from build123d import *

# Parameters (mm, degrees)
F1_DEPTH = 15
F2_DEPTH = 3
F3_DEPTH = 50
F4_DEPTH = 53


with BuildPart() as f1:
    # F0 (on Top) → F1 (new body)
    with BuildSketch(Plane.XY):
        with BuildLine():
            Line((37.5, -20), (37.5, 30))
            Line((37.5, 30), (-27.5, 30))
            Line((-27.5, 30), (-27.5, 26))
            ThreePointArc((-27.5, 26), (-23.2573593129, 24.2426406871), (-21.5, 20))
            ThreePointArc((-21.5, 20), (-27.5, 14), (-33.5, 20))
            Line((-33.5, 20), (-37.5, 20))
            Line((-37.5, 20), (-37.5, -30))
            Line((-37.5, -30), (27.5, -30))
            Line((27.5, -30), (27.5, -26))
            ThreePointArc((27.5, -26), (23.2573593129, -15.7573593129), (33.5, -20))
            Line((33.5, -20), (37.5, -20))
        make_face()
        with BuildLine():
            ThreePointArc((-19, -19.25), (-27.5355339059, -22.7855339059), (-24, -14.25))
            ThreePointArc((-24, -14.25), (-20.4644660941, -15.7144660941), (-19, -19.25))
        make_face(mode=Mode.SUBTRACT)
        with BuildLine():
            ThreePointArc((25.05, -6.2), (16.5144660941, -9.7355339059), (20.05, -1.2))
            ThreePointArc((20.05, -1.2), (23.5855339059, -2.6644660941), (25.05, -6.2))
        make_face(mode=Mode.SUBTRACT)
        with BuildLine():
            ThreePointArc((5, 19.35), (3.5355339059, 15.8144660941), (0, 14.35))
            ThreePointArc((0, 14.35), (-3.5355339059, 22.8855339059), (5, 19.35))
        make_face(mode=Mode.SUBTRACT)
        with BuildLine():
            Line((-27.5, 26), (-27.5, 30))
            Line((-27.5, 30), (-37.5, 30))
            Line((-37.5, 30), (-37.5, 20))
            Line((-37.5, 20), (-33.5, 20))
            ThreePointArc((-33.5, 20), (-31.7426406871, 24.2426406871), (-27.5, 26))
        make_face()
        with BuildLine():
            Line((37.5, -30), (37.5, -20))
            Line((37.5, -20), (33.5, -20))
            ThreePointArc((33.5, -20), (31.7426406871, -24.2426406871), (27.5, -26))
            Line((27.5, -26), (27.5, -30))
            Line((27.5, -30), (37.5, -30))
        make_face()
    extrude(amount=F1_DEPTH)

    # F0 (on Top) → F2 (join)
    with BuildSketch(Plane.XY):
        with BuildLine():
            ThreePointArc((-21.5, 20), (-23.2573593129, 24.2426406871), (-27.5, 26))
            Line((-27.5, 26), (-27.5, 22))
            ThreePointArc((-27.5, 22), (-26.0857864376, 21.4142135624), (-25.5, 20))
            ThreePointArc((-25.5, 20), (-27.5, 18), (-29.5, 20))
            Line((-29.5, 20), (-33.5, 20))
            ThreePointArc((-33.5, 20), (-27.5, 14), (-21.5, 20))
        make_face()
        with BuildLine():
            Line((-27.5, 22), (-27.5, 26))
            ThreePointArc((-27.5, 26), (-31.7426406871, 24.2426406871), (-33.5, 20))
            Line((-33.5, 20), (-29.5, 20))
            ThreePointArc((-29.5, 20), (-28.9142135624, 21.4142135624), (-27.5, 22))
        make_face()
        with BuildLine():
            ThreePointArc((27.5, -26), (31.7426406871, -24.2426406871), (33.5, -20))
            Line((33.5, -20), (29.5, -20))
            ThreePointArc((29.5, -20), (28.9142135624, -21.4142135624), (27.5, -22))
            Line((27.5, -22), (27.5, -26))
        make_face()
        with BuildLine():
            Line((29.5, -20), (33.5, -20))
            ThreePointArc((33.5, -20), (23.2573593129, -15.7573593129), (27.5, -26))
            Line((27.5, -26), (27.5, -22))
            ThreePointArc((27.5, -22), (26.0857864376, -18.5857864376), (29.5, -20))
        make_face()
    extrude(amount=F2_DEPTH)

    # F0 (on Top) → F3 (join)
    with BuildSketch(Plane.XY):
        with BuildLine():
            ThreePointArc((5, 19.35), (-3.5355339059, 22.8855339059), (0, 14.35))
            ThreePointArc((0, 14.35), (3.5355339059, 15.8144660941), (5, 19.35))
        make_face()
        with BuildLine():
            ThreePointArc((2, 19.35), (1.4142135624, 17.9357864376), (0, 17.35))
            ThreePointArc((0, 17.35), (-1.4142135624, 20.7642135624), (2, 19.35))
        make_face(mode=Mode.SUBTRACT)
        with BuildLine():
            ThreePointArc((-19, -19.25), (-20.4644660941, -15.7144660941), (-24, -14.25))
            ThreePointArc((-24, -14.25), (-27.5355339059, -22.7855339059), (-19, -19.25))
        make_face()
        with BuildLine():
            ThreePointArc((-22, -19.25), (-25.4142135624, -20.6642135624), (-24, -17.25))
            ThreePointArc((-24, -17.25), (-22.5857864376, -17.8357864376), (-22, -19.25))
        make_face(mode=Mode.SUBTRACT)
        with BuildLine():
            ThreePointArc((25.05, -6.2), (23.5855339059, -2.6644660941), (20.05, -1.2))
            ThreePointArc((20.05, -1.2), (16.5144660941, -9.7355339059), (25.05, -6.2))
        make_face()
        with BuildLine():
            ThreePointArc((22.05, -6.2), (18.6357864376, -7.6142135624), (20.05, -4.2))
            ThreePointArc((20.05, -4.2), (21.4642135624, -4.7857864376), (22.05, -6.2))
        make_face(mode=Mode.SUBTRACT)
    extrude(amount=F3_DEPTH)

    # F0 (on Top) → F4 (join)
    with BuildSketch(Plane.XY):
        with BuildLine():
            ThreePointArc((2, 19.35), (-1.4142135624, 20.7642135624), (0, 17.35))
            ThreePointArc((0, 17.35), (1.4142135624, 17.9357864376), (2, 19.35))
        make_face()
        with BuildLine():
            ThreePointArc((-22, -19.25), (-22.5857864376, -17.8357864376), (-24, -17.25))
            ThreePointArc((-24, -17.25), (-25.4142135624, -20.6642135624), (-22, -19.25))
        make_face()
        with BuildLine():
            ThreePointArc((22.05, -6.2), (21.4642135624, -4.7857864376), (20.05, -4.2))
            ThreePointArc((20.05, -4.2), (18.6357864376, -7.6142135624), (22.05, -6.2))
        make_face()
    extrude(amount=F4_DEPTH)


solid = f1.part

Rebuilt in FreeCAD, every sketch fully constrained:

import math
import FreeCAD as App
import Part
import Sketcher
from FreeCAD import Vector
Q = App.Units.Quantity


def add_polygon(sketch, points):
    """Adds a closed chain of lines whose ends are joined by coincident constraints."""
    first, n = sketch.GeometryCount, len(points)
    for a, b in zip(points, points[1:] + points[:1]):
        sketch.addGeometry(Part.LineSegment(App.Vector(*a, 0), App.Vector(*b, 0)), False)
    for i in range(n):
        sketch.addConstraint(Sketcher.Constraint("Coincident", first + i, 2, first + (i + 1) % n, 1))

doc = App.newDocument("Part")
body = doc.addObject("PartDesign::Body", "Body")

# Sketch on XY plane
sketch1 = doc.addObject("Sketcher::SketchObject", "Sketch")
body.addObject(sketch1)
sketch1.AttachmentSupport = (doc.XY_Plane, [""])
sketch1.MapMode = "FlatFace"
add_polygon(sketch1, [(38, 30), (-38, 30), (-38, -30), (38, -30)])  # lines 0-3
sketch1.addGeometry(Part.ArcOfCircle(Part.Circle(Vector(28, -20, 0), Vector(0, 0, 1), 6), math.radians(0), math.radians(270)), False)  # 4
sketch1.addGeometry(Part.ArcOfCircle(Part.Circle(Vector(28, -20, 0), Vector(0, 0, 1), 6), math.radians(-90), math.radians(0)), False)  # 5
sketch1.addGeometry(Part.ArcOfCircle(Part.Circle(Vector(-28, 20, 0), Vector(0, 0, 1), 6), math.radians(0), math.radians(90)), False)  # 6
sketch1.addGeometry(Part.ArcOfCircle(Part.Circle(Vector(-28, 20, 0), Vector(0, 0, 1), 6), math.radians(180), math.radians(360)), False)  # 7
sketch1.addGeometry(Part.ArcOfCircle(Part.Circle(Vector(-28, 20, 0), Vector(0, 0, 1), 6), math.radians(90), math.radians(180)), False)  # 8
sketch1.addGeometry(Part.ArcOfCircle(Part.Circle(Vector(-24, -19, 0), Vector(0, 0, 1), 5), math.radians(0), math.radians(90)), False)  # 9
sketch1.addGeometry(Part.ArcOfCircle(Part.Circle(Vector(-24, -19, 0), Vector(0, 0, 1), 5), math.radians(90), math.radians(360)), False)  # 10
sketch1.addGeometry(Part.ArcOfCircle(Part.Circle(Vector(20, -6, 0), Vector(0, 0, 1), 5), math.radians(0), math.radians(90)), False)  # 11
sketch1.addGeometry(Part.ArcOfCircle(Part.Circle(Vector(20, -6, 0), Vector(0, 0, 1), 5), math.radians(90), math.radians(360)), False)  # 12
sketch1.addGeometry(Part.ArcOfCircle(Part.Circle(Vector(0, 19, 0), Vector(0, 0, 1), 5), math.radians(0), math.radians(270)), False)  # 13
sketch1.addGeometry(Part.ArcOfCircle(Part.Circle(Vector(0, 19, 0), Vector(0, 0, 1), 5), math.radians(-90), math.radians(0)), False)  # 14
sketch1.addConstraint([
    Sketcher.Constraint("Tangent", 4, 1, 5, 2),
    Sketcher.Constraint("Coincident", 5, 1, 4, 2),
    Sketcher.Constraint("Tangent", 6, 1, 7, 2),
    Sketcher.Constraint("Tangent", 7, 1, 8, 2),
    Sketcher.Constraint("Tangent", 8, 1, 6, 2),
    Sketcher.Constraint("Tangent", 9, 1, 10, 2),
    Sketcher.Constraint("Coincident", 10, 1, 9, 2),
    Sketcher.Constraint("Tangent", 11, 1, 12, 2),
    Sketcher.Constraint("Coincident", 12, 1, 11, 2),
    Sketcher.Constraint("Tangent", 13, 1, 14, 2),
    Sketcher.Constraint("Coincident", 14, 1, 13, 2),
    Sketcher.Constraint("Horizontal", 0),
    Sketcher.Constraint("Vertical", 1),
    Sketcher.Constraint("Horizontal", 2),
    Sketcher.Constraint("Vertical", 3),
    Sketcher.Constraint("Equal", 5, 6),
    Sketcher.Constraint("Equal", 10, 11),
    Sketcher.Constraint("Equal", 12, 13),
    Sketcher.Constraint("Symmetric", 4, 3, 6, 3, -1, 1),
    Sketcher.Constraint("Symmetric", 0, 2, 2, 2, -1, 1),
    Sketcher.Constraint("PointOnObject", 13, 3, -2),
    Sketcher.Constraint("PointOnObject", 14, 1, -2),
    Sketcher.Constraint("Horizontal", 5, 3, 4, 1),
    Sketcher.Constraint("Horizontal", 8, 3, 6, 1),
    Sketcher.Constraint("Horizontal", 6, 1, 7, 1),
    Sketcher.Constraint("Horizontal", 10, 3, 9, 1),
    Sketcher.Constraint("Horizontal", 12, 3, 11, 1),
    Sketcher.Constraint("Horizontal", 14, 3, 13, 1),
    Sketcher.Constraint("Vertical", 4, 3, 5, 1),
    Sketcher.Constraint("Vertical", 7, 3, 8, 1),
    Sketcher.Constraint("Vertical", 9, 3, 10, 1),
    Sketcher.Constraint("Vertical", 11, 3, 12, 1),
    Sketcher.Constraint("Radius", 4, Q("6 mm")),
    Sketcher.Constraint("Radius", 9, Q("5 mm")),
    Sketcher.Constraint("DistanceX", 0, 2, 0, 1, Q("75 mm")),
    Sketcher.Constraint("DistanceY", 1, 2, 1, 1, Q("60 mm")),
    Sketcher.Constraint("DistanceY", 4, 3, -1, 1, Q("20 mm")),
    Sketcher.Constraint("DistanceX", 9, 3, -1, 1, Q("24 mm")),
    Sketcher.Constraint("DistanceX", 6, 3, 4, 3, Q("55 mm")),
    Sketcher.Constraint("DistanceY", 11, 3, -1, 1, Q("6.2 mm")),
    Sketcher.Constraint("DistanceY", 9, 3, -1, 1, Q("19.25 mm")),
    Sketcher.Constraint("DistanceX", -1, 1, 11, 3, Q("20.05 mm")),
    Sketcher.Constraint("DistanceY", -1, 1, 13, 3, Q("19.35 mm")),
])
pad1 = doc.addObject("PartDesign::Pad", "Pad")
body.addObject(pad1)
pad1.Profile = sketch1
pad1.Length = 15

# Sketch on XY plane
sketch2 = doc.addObject("Sketcher::SketchObject", "Sketch001")
body.addObject(sketch2)
sketch2.AttachmentSupport = (doc.XY_Plane, [""])
sketch2.MapMode = "FlatFace"
sketch2.addGeometry([
    Part.ArcOfCircle(Part.Circle(Vector(-27.5, 20, 0), Vector(0, 0, 1), 6), math.radians(0), math.radians(90)),  # 0
    Part.ArcOfCircle(Part.Circle(Vector(-27.5, 20, 0), Vector(0, 0, 1), 6), math.radians(90), math.radians(180)),  # 1
    Part.ArcOfCircle(Part.Circle(Vector(-27.5, 20, 0), Vector(0, 0, 1), 6), math.radians(180), math.radians(360)),  # 2
    Part.ArcOfCircle(Part.Circle(Vector(-27.5, 20, 0), Vector(0, 0, 1), 2), math.radians(0), math.radians(90)),  # 3
    Part.ArcOfCircle(Part.Circle(Vector(-27.5, 20, 0), Vector(0, 0, 1), 2), math.radians(180), math.radians(360)),  # 4
    Part.ArcOfCircle(Part.Circle(Vector(-27.5, 20, 0), Vector(0, 0, 1), 2), math.radians(90), math.radians(180)),  # 5
    Part.ArcOfCircle(Part.Circle(Vector(27.5, -20, 0), Vector(0, 0, 1), 6), math.radians(-90), math.radians(0)),  # 6
    Part.ArcOfCircle(Part.Circle(Vector(27.5, -20, 0), Vector(0, 0, 1), 6), math.radians(0), math.radians(270)),  # 7
    Part.ArcOfCircle(Part.Circle(Vector(27.5, -20, 0), Vector(0, 0, 1), 2), math.radians(-90), math.radians(0)),  # 8
    Part.ArcOfCircle(Part.Circle(Vector(27.5, -20, 0), Vector(0, 0, 1), 2), math.radians(0), math.radians(270)),  # 9
], False)
sketch2.addConstraint([
    Sketcher.Constraint("Tangent", 0, 2, 1, 1),
    Sketcher.Constraint("Tangent", 1, 2, 2, 1),
    Sketcher.Constraint("Tangent", 2, 2, 0, 1),
    Sketcher.Constraint("Tangent", 3, 1, 4, 2),
    Sketcher.Constraint("Tangent", 4, 1, 5, 2),
    Sketcher.Constraint("Tangent", 5, 1, 3, 2),
    Sketcher.Constraint("Tangent", 6, 1, 7, 2),
    Sketcher.Constraint("Coincident", 7, 1, 6, 2),
    Sketcher.Constraint("Tangent", 8, 1, 9, 2),
    Sketcher.Constraint("Coincident", 9, 1, 8, 2),
    Sketcher.Constraint("Coincident", 3, 3, 0, 3),
    Sketcher.Constraint("Coincident", 8, 3, 6, 3),
    Sketcher.Constraint("Equal", 2, 6),
    Sketcher.Constraint("Equal", 5, 8),
    Sketcher.Constraint("Symmetric", 0, 3, 6, 3, -1, 1),
    Sketcher.Constraint("Horizontal", 5, 3, 1, 2),
    Sketcher.Constraint("Horizontal", 1, 2, 2, 2),
    Sketcher.Constraint("Horizontal", 2, 2, 3, 1),
    Sketcher.Constraint("Horizontal", 3, 1, 4, 1),
    Sketcher.Constraint("Horizontal", 9, 3, 7, 1),
    Sketcher.Constraint("Horizontal", 7, 1, 9, 1),
    Sketcher.Constraint("Vertical", 5, 3, 0, 2),
    Sketcher.Constraint("Vertical", 0, 2, 5, 1),
    Sketcher.Constraint("Vertical", 9, 3, 6, 1),
    Sketcher.Constraint("Vertical", 6, 1, 8, 1),
    Sketcher.Constraint("Radius", 0, Q("6 mm")),
    Sketcher.Constraint("Radius", 3, Q("2 mm")),
    Sketcher.Constraint("DistanceY", -1, 1, 0, 3, Q("20 mm")),
    Sketcher.Constraint("DistanceX", 0, 3, 6, 3, Q("55 mm")),
])
pad2 = doc.addObject("PartDesign::Pad", "Pad001")
body.addObject(pad2)
pad2.Profile = sketch2
pad2.Length = 3

# Sketch on XY plane
sketch3 = doc.addObject("Sketcher::SketchObject", "Sketch002")
body.addObject(sketch3)
sketch3.AttachmentSupport = (doc.XY_Plane, [""])
sketch3.MapMode = "FlatFace"
sketch3.addGeometry([
    Part.ArcOfCircle(Part.Circle(Vector(0, 19.4, 0), Vector(0, 0, 1), 5), math.radians(0), math.radians(270)),  # 0
    Part.ArcOfCircle(Part.Circle(Vector(0, 19.4, 0), Vector(0, 0, 1), 5), math.radians(-90), math.radians(0)),  # 1
    Part.ArcOfCircle(Part.Circle(Vector(0, 19.4, 0), Vector(0, 0, 1), 2), math.radians(0), math.radians(270)),  # 2
    Part.ArcOfCircle(Part.Circle(Vector(0, 19.4, 0), Vector(0, 0, 1), 2), math.radians(-90), math.radians(0)),  # 3
    Part.ArcOfCircle(Part.Circle(Vector(-24, -19.2, 0), Vector(0, 0, 1), 5), math.radians(0), math.radians(90)),  # 4
    Part.ArcOfCircle(Part.Circle(Vector(-24, -19.2, 0), Vector(0, 0, 1), 5), math.radians(90), math.radians(360)),  # 5
    Part.ArcOfCircle(Part.Circle(Vector(-24, -19.2, 0), Vector(0, 0, 1), 2), math.radians(0), math.radians(90)),  # 6
    Part.ArcOfCircle(Part.Circle(Vector(-24, -19.2, 0), Vector(0, 0, 1), 2), math.radians(90), math.radians(360)),  # 7
    Part.ArcOfCircle(Part.Circle(Vector(20.1, -6.2, 0), Vector(0, 0, 1), 5), math.radians(0), math.radians(90)),  # 8
    Part.ArcOfCircle(Part.Circle(Vector(20.1, -6.2, 0), Vector(0, 0, 1), 5), math.radians(90), math.radians(360)),  # 9
    Part.ArcOfCircle(Part.Circle(Vector(20.1, -6.2, 0), Vector(0, 0, 1), 2), math.radians(0), math.radians(90)),  # 10
    Part.ArcOfCircle(Part.Circle(Vector(20.1, -6.2, 0), Vector(0, 0, 1), 2), math.radians(90), math.radians(360)),  # 11
], False)
sketch3.addConstraint([
    Sketcher.Constraint("Tangent", 0, 1, 1, 2),
    Sketcher.Constraint("Coincident", 1, 1, 0, 2),
    Sketcher.Constraint("Tangent", 2, 1, 3, 2),
    Sketcher.Constraint("Coincident", 3, 1, 2, 2),
    Sketcher.Constraint("Tangent", 4, 1, 5, 2),
    Sketcher.Constraint("Coincident", 5, 1, 4, 2),
    Sketcher.Constraint("Tangent", 6, 1, 7, 2),
    Sketcher.Constraint("Coincident", 7, 1, 6, 2),
    Sketcher.Constraint("Tangent", 8, 1, 9, 2),
    Sketcher.Constraint("Coincident", 9, 1, 8, 2),
    Sketcher.Constraint("Tangent", 10, 1, 11, 2),
    Sketcher.Constraint("Coincident", 11, 1, 10, 2),
    Sketcher.Constraint("Coincident", 2, 3, 0, 3),
    Sketcher.Constraint("Coincident", 6, 3, 4, 3),
    Sketcher.Constraint("Coincident", 10, 3, 8, 3),
    Sketcher.Constraint("Equal", 1, 4),
    Sketcher.Constraint("Equal", 3, 6),
    Sketcher.Constraint("Equal", 5, 8),
    Sketcher.Constraint("Equal", 7, 10),
    Sketcher.Constraint("PointOnObject", 0, 3, -2),
    Sketcher.Constraint("PointOnObject", 1, 1, -2),
    Sketcher.Constraint("PointOnObject", 3, 1, -2),
    Sketcher.Constraint("Horizontal", 3, 3, 0, 1),
    Sketcher.Constraint("Horizontal", 0, 1, 2, 1),
    Sketcher.Constraint("Horizontal", 7, 3, 4, 1),
    Sketcher.Constraint("Horizontal", 4, 1, 6, 1),
    Sketcher.Constraint("Horizontal", 11, 3, 8, 1),
    Sketcher.Constraint("Horizontal", 8, 1, 10, 1),
    Sketcher.Constraint("Vertical", 7, 3, 5, 1),
    Sketcher.Constraint("Vertical", 5, 1, 7, 1),
    Sketcher.Constraint("Vertical", 11, 3, 9, 1),
    Sketcher.Constraint("Vertical", 9, 1, 11, 1),
    Sketcher.Constraint("Radius", 0, Q("5 mm")),
    Sketcher.Constraint("Radius", 2, Q("2 mm")),
    Sketcher.Constraint("DistanceX", 4, 3, -1, 1, Q("24 mm")),
    Sketcher.Constraint("DistanceY", 8, 3, -1, 1, Q("6.2 mm")),
    Sketcher.Constraint("DistanceY", 4, 3, 0, 3, Q("38.6 mm")),
    Sketcher.Constraint("DistanceY", -1, 1, 0, 3, Q("19.35 mm")),
    Sketcher.Constraint("DistanceX", -1, 1, 8, 3, Q("20.05 mm")),
])
pad3 = doc.addObject("PartDesign::Pad", "Pad002")
body.addObject(pad3)
pad3.Profile = sketch3
pad3.Length = 50

# Sketch on XY plane
sketch4 = doc.addObject("Sketcher::SketchObject", "Sketch003")
body.addObject(sketch4)
sketch4.AttachmentSupport = (doc.XY_Plane, [""])
sketch4.MapMode = "FlatFace"
sketch4.addGeometry([
    Part.ArcOfCircle(Part.Circle(Vector(0, 19.4, 0), Vector(0, 0, 1), 2), math.radians(0), math.radians(270)),  # 0
    Part.ArcOfCircle(Part.Circle(Vector(0, 19.4, 0), Vector(0, 0, 1), 2), math.radians(-90), math.radians(0)),  # 1
    Part.ArcOfCircle(Part.Circle(Vector(-24, -19.2, 0), Vector(0, 0, 1), 2), math.radians(0), math.radians(90)),  # 2
    Part.ArcOfCircle(Part.Circle(Vector(-24, -19.2, 0), Vector(0, 0, 1), 2), math.radians(90), math.radians(360)),  # 3
    Part.ArcOfCircle(Part.Circle(Vector(20.1, -6.2, 0), Vector(0, 0, 1), 2), math.radians(0), math.radians(90)),  # 4
    Part.ArcOfCircle(Part.Circle(Vector(20.1, -6.2, 0), Vector(0, 0, 1), 2), math.radians(90), math.radians(360)),  # 5
], False)
sketch4.addConstraint([
    Sketcher.Constraint("Tangent", 0, 1, 1, 2),
    Sketcher.Constraint("Coincident", 1, 1, 0, 2),
    Sketcher.Constraint("Tangent", 2, 1, 3, 2),
    Sketcher.Constraint("Coincident", 3, 1, 2, 2),
    Sketcher.Constraint("Tangent", 4, 1, 5, 2),
    Sketcher.Constraint("Coincident", 5, 1, 4, 2),
    Sketcher.Constraint("Equal", 1, 2),
    Sketcher.Constraint("Equal", 3, 4),
    Sketcher.Constraint("PointOnObject", 0, 3, -2),
    Sketcher.Constraint("PointOnObject", 1, 1, -2),
    Sketcher.Constraint("Horizontal", 1, 3, 0, 1),
    Sketcher.Constraint("Horizontal", 3, 3, 2, 1),
    Sketcher.Constraint("Horizontal", 5, 3, 4, 1),
    Sketcher.Constraint("Vertical", 2, 3, 3, 1),
    Sketcher.Constraint("Vertical", 4, 3, 5, 1),
    Sketcher.Constraint("Radius", 0, Q("2 mm")),
    Sketcher.Constraint("DistanceX", 2, 3, -1, 1, Q("24 mm")),
    Sketcher.Constraint("DistanceY", 4, 3, -1, 1, Q("6.2 mm")),
    Sketcher.Constraint("DistanceY", 2, 3, 0, 3, Q("38.6 mm")),
    Sketcher.Constraint("DistanceY", -1, 1, 0, 3, Q("19.35 mm")),
    Sketcher.Constraint("DistanceX", -1, 1, 4, 3, Q("20.05 mm")),
])
pad4 = doc.addObject("PartDesign::Pad", "Pad003")
body.addObject(pad4)
pad4.Profile = sketch4
pad4.Length = 53

doc.recompute()
